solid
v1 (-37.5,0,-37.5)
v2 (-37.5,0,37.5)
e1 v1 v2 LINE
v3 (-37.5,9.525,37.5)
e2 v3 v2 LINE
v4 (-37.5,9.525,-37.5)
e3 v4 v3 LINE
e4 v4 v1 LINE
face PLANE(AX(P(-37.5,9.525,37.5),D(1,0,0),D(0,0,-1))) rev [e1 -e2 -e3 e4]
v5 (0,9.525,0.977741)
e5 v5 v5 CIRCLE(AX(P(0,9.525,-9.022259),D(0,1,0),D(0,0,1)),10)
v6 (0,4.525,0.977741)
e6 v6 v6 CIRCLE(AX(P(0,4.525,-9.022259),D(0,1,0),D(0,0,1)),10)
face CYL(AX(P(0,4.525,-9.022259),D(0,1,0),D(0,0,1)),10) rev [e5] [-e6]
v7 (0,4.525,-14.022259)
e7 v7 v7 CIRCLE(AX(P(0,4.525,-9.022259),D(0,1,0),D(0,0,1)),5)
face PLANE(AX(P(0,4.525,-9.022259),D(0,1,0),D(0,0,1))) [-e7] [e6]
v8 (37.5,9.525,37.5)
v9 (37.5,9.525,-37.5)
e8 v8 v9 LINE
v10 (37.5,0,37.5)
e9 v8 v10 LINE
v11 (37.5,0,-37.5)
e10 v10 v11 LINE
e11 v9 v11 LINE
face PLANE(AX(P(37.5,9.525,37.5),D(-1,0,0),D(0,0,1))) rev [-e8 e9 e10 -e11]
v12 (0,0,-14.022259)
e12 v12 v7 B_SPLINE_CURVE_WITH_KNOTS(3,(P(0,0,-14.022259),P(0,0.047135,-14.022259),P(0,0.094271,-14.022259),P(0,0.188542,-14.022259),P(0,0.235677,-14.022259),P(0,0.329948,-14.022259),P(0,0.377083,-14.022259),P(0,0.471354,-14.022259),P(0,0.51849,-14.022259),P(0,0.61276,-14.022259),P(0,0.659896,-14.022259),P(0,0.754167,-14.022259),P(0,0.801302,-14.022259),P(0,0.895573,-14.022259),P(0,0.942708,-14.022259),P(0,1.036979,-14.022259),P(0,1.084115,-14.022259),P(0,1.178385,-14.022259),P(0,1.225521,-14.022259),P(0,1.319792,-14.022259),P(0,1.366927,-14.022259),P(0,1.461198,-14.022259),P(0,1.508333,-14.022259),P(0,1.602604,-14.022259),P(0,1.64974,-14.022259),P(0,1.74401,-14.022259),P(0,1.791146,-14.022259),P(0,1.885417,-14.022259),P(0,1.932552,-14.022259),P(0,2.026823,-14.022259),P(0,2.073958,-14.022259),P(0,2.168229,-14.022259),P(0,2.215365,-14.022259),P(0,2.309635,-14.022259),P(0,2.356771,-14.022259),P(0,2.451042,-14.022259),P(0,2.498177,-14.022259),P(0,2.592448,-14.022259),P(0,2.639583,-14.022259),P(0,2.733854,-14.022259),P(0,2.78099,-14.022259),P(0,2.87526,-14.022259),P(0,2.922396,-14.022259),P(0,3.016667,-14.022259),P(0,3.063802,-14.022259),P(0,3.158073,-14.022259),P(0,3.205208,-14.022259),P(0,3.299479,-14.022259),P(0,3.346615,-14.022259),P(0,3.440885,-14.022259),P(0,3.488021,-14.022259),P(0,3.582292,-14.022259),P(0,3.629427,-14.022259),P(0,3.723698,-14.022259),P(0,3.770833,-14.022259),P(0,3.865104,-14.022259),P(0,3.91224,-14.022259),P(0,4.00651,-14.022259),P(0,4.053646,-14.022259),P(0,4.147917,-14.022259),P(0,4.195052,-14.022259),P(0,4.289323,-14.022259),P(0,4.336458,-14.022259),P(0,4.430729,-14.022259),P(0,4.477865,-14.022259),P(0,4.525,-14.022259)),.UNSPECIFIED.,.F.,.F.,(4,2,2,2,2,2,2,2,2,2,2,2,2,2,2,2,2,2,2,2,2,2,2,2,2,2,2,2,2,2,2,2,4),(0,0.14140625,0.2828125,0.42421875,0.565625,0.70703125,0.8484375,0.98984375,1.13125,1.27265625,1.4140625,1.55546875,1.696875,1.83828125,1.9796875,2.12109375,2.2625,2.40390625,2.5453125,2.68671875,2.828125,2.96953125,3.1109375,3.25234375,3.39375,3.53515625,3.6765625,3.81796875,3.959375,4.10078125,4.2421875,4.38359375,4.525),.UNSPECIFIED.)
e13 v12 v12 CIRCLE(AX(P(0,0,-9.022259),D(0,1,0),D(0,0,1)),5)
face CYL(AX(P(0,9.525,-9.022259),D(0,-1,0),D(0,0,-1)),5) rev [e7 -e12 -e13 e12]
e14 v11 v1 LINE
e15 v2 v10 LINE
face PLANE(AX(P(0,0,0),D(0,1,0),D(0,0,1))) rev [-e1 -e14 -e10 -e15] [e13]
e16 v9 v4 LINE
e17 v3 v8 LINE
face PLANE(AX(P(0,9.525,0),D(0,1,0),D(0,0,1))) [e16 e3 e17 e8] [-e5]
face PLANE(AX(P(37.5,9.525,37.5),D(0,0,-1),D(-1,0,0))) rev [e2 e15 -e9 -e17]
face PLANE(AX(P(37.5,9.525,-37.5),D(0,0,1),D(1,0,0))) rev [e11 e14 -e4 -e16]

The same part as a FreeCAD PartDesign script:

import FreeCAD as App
import Part
import Sketcher
Q = App.Units.Quantity

doc = App.newDocument("Part")
body = doc.addObject("PartDesign::Body", "Body")

# Sketch on XZ plane
sketch1 = body.newObject("Sketcher::SketchObject", "Sketch")
sketch1.AttachmentSupport = (doc.getObject("XZ_Plane"), [""])
sketch1.MapMode = "FlatFace"
sketch1.addGeometry([
    Part.LineSegment(App.Vector(-38, -38, 0), App.Vector(-38, 38, 0)),  # 0
    Part.LineSegment(App.Vector(-38, 38, 0), App.Vector(38, 38, 0)),  # 1
    Part.LineSegment(App.Vector(38, 38, 0), App.Vector(38, -38, 0)),  # 2
    Part.LineSegment(App.Vector(38, -38, 0), App.Vector(-38, -38, 0)),  # 3
    Part.Circle(App.Vector(0, -9, 0), App.Vector(0, 0, 1), 5),  # 4
], False)
sketch1.addConstraint([
    Sketcher.Constraint("Coincident", 0, 2, 1, 1),
    Sketcher.Constraint("Coincident", 1, 2, 2, 1),
    Sketcher.Constraint("Coincident", 2, 2, 3, 1),
    Sketcher.Constraint("Coincident", 3, 2, 0, 1),
    Sketcher.Constraint("Vertical", 0),
    Sketcher.Constraint("Horizontal", 1),
    Sketcher.Constraint("Vertical", 2),
    Sketcher.Constraint("Horizontal", 3),
    Sketcher.Constraint("Symmetric", 0, 2, 2, 2, -1, 1),
    Sketcher.Constraint("PointOnObject", 4, 3, -2),
    Sketcher.Constraint("Equal", 3, 0),
    Sketcher.Constraint("Diameter", 4, Q("10 mm")),
    Sketcher.Constraint("DistanceX", 1, 1, 1, 2, Q("75 mm")),
    Sketcher.Constraint("DistanceY", 4, 3, -1, 1, Q("9.022259 mm")),
])
pad1 = body.newObject("PartDesign::Pad", "Pad")
pad1.Profile = sketch1
pad1.Length = 9.525
pad1.Reversed = True

# Sketch on XZ plane
sketch2 = body.newObject("Sketcher::SketchObject", "Sketch001")
sketch2.AttachmentSupport = (doc.getObject("XZ_Plane"), [""])
sketch2.MapMode = "FlatFace"
sketch2.AttachmentOffset = App.Placement(App.Vector(0, 0, -9.525), App.Rotation())
sketch2.addGeometry(Part.Circle(App.Vector(0, -9, 0), App.Vector(0, 0, 1), 10), False)
sketch2.addConstraint([
    Sketcher.Constraint("PointOnObject", 0, 3, -2),
    Sketcher.Constraint("Diameter", 0, Q("20 mm")),
    Sketcher.Constraint("DistanceY", 0, 3, -1, 1, Q("9.022259 mm")),
])
pocket1 = body.newObject("PartDesign::Pocket", "Pocket")
pocket1.Profile = sketch2
pocket1.Length = 5
pocket1.Reversed = True

doc.recompute()
